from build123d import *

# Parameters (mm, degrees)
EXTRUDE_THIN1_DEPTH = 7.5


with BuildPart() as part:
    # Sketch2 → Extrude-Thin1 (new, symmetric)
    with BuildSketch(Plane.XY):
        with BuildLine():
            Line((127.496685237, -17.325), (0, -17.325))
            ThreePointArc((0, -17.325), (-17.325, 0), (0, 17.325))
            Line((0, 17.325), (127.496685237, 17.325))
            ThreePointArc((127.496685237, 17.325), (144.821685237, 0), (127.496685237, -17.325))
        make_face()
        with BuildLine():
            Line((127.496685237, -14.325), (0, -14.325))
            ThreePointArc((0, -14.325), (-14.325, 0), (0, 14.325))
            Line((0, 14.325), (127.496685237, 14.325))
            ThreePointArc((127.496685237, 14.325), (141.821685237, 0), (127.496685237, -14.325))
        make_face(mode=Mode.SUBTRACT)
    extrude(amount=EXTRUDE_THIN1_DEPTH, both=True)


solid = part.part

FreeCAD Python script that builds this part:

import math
import FreeCAD as App
import Part
import Sketcher
Q = App.Units.Quantity

doc = App.newDocument("Part")
body = doc.addObject("PartDesign::Body", "Body")

sketch1 = body.newObject("Sketcher::SketchObject", "Sketch")
sketch1.AttachmentSupport = (doc.getObject("XY_Plane"), [""])
sketch1.MapMode = "FlatFace"
sketch1.addGeometry([
    Part.LineSegment(App.Vector(0, -17.325, 0), App.Vector(127.496685, -17.325, 0)),
    Part.ArcOfCircle(Part.Circle(App.Vector(127.496685, 0, 0), App.Vector(0, 0, 1), 17.325), math.radians(-90), math.radians(90)),
    Part.LineSegment(App.Vector(127.496685, 17.325, 0), App.Vector(0, 17.325, 0)),
    Part.ArcOfCircle(Part.Circle(App.Vector(0, 0, 0), App.Vector(0, 0, 1), 17.325), math.radians(90), math.radians(270)),
    Part.LineSegment(App.Vector(127.496685, -14.325, 0), App.Vector(0, -14.325, 0)),
    Part.ArcOfCircle(Part.Circle(App.Vector(0, 0, 0), App.Vector(0, 0, 1), 14.325), math.radians(90), math.radians(270)),
    Part.LineSegment(App.Vector(0, 14.325, 0), App.Vector(127.496685, 14.325, 0)),
    Part.ArcOfCircle(Part.Circle(App.Vector(127.496685, 0, 0), App.Vector(0, 0, 1), 14.325), math.radians(-90), math.radians(90)),
], False)
sketch1.addConstraint([
    Sketcher.Constraint("Tangent", 0, 2, 1, 1),
    Sketcher.Constraint("Tangent", 1, 2, 2, 1),
    Sketcher.Constraint("Tangent", 2, 2, 3, 1),
    Sketcher.Constraint("Tangent", 3, 2, 0, 1),
    Sketcher.Constraint("Tangent", 4, 2, 5, 2),
    Sketcher.Constraint("Tangent", 5, 1, 6, 1),
    Sketcher.Constraint("Tangent", 6, 2, 7, 2),
    Sketcher.Constraint("Tangent", 7, 1, 4, 1),
    Sketcher.Constraint("Horizontal", 0),
    Sketcher.Constraint("Horizontal", 2),
    Sketcher.Constraint("Horizontal", 4),
    Sketcher.Constraint("Horizontal", 6),
    Sketcher.Constraint("Coincident", 3, 3, -1, 1),
    Sketcher.Constraint("Coincident", 5, 3, -1, 1),
    Sketcher.Constraint("Vertical", 7, 3, 0, 2),
    Sketcher.Constraint("Radius", 1, Q("17.325 mm")),
    Sketcher.Constraint("Radius", 5, Q("14.325 mm")),
    Sketcher.Constraint("DistanceX", 0, 1, 0, 2, Q("127.496685 mm")),
])
pad1 = body.newObject("PartDesign::Pad", "Pad")
pad1.Profile = sketch1
pad1.Length = 15
pad1.Midplane = True

doc.recompute()
